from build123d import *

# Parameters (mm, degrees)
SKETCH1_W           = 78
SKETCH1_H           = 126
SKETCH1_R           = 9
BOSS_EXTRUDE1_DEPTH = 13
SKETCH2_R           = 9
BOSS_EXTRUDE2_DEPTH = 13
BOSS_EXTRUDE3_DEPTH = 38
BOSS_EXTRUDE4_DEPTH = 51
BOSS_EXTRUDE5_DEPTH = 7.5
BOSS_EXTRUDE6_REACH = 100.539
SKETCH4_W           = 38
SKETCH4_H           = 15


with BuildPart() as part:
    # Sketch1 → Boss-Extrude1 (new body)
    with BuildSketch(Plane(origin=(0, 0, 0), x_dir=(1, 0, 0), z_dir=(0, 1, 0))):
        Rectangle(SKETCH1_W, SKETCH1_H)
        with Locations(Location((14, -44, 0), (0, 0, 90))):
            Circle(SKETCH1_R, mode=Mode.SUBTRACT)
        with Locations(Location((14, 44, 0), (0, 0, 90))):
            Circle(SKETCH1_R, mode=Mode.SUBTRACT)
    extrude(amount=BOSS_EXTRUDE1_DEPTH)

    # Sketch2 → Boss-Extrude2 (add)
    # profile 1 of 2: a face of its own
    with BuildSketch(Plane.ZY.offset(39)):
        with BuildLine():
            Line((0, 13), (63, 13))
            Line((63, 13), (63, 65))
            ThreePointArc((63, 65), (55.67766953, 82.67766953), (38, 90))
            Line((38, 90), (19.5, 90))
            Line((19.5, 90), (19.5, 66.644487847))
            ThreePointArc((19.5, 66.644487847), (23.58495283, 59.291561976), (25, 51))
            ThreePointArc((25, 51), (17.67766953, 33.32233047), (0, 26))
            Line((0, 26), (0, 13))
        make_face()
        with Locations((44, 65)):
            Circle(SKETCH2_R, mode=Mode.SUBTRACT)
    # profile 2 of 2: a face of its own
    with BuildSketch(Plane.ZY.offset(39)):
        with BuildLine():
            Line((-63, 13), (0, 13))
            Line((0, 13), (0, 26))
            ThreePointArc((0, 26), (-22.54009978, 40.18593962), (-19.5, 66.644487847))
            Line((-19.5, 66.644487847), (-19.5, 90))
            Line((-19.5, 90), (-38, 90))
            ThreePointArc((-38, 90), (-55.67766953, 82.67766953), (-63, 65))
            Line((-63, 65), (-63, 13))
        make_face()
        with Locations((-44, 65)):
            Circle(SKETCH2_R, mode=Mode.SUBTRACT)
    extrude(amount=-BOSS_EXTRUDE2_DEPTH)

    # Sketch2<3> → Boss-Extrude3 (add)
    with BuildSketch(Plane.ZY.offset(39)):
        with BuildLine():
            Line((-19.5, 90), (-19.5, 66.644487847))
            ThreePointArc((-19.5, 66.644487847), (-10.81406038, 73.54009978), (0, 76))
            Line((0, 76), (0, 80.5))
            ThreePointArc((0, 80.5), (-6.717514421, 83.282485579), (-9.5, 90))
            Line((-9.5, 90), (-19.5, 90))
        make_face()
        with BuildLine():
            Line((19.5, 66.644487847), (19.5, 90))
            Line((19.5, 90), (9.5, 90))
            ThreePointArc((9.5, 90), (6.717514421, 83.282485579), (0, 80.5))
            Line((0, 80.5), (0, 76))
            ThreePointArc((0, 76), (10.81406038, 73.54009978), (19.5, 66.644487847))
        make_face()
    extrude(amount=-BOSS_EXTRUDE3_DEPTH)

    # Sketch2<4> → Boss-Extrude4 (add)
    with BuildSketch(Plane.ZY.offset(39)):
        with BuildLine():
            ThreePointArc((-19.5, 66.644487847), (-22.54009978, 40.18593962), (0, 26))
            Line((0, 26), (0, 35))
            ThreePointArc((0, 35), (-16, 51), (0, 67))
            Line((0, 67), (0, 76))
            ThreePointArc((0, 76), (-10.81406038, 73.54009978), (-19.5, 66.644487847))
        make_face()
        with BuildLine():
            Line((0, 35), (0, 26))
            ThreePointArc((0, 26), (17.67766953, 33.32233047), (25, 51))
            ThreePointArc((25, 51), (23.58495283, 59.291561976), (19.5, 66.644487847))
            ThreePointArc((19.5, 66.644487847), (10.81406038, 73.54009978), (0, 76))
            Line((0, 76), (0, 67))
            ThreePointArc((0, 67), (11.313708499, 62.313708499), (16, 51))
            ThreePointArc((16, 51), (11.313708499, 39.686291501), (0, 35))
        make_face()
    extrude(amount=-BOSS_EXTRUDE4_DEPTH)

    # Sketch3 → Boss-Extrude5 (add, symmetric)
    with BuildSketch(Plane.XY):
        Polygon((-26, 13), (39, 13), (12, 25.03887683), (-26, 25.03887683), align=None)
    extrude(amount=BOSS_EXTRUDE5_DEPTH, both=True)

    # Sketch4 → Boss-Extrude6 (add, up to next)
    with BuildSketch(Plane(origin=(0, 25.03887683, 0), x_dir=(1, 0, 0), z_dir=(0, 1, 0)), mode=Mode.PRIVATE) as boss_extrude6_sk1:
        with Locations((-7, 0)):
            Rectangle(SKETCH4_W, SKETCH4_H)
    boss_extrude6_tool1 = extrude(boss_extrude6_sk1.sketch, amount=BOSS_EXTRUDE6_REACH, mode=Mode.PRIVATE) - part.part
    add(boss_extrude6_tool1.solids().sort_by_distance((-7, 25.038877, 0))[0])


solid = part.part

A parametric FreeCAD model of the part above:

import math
import FreeCAD as App
import Part
import Sketcher
Q = App.Units.Quantity

doc = App.newDocument("Part")
body = doc.addObject("PartDesign::Body", "Body")

# Sketch on XZ plane
sketch1 = body.newObject("Sketcher::SketchObject", "Sketch")
sketch1.AttachmentSupport = (doc.getObject("XZ_Plane"), [""])
sketch1.MapMode = "FlatFace"
sketch1.addGeometry(Part.LineSegment(App.Vector(-39, -63, 0), App.Vector(-39, 63, 0)), False)
sketch1.addGeometry(Part.LineSegment(App.Vector(-39, 63, 0), App.Vector(39, 63, 0)), False)
sketch1.addGeometry(Part.LineSegment(App.Vector(39, 63, 0), App.Vector(39, -63, 0)), False)
sketch1.addGeometry(Part.LineSegment(App.Vector(39, -63, 0), App.Vector(-39, -63, 0)), False)
sketch1.addGeometry(Part.Circle(App.Vector(14, 44, 0), App.Vector(0, 0, 1), 9), False)
sketch1.addGeometry(Part.Circle(App.Vector(14, -44, 0), App.Vector(0, 0, 1), 9), False)
sketch1.addConstraint(Sketcher.Constraint("Coincident", 0, 2, 1, 1))
sketch1.addConstraint(Sketcher.Constraint("Coincident", 1, 2, 2, 1))
sketch1.addConstraint(Sketcher.Constraint("Coincident", 2, 2, 3, 1))
sketch1.addConstraint(Sketcher.Constraint("Coincident", 3, 2, 0, 1))
sketch1.addConstraint(Sketcher.Constraint("Vertical", 0))
sketch1.addConstraint(Sketcher.Constraint("Horizontal", 1))
sketch1.addConstraint(Sketcher.Constraint("Vertical", 2))
sketch1.addConstraint(Sketcher.Constraint("Horizontal", 3))
sketch1.addConstraint(Sketcher.Constraint("Equal", 4, 5))
sketch1.addConstraint(Sketcher.Constraint("Symmetric", 0, 2, 2, 2, -1, 1))
sketch1.addConstraint(Sketcher.Constraint("Symmetric", 4, 3, 5, 3, -1))
sketch1.addConstraint(Sketcher.Constraint("Diameter", 4, Q("18 mm")))
sketch1.addConstraint(Sketcher.Constraint("DistanceX", 1, 1, 1, 2, Q("78 mm")))
sketch1.addConstraint(Sketcher.Constraint("DistanceY", 0, 1, 0, 2, Q("126 mm")))
sketch1.addConstraint(Sketcher.Constraint("DistanceX", -1, 1, 4, 3, Q("14 mm")))
sketch1.addConstraint(Sketcher.Constraint("DistanceY", -1, 1, 4, 3, Q("44 mm")))
pad1 = body.newObject("PartDesign::Pad", "Pad")
pad1.Profile = sketch1
pad1.Length = 13
pad1.Reversed = True

# Sketch on YZ plane
sketch2 = body.newObject("Sketcher::SketchObject", "Sketch001")
sketch2.AttachmentSupport = (doc.getObject("YZ_Plane"), [""])
sketch2.MapMode = "FlatFace"
sketch2.AttachmentOffset = App.Placement(App.Vector(0, 0, -39), App.Rotation())
sketch2.addGeometry(Part.LineSegment(App.Vector(13, 63, 0), App.Vector(65, 63, 0)), False)
sketch2.addGeometry(Part.ArcOfCircle(Part.Circle(App.Vector(65, 38, 0), App.Vector(0, 0, 1), 25), math.radians(0), math.radians(90)), False)
sketch2.addGeometry(Part.LineSegment(App.Vector(90, 38, 0), App.Vector(90, 20, 0)), False)
sketch2.addGeometry(Part.LineSegment(App.Vector(90, 20, 0), App.Vector(67, 20, 0)), False)
sketch2.addGeometry(Part.ArcOfCircle(Part.Circle(App.Vector(51, 0, 0), App.Vector(0, 0, 1), 25), math.radians(51), math.radians(90)), False)
sketch2.addGeometry(Part.ArcOfCircle(Part.Circle(App.Vector(51, 0, 0), App.Vector(0, 0, 1), 25), math.radians(90), math.radians(180)), False)
sketch2.addGeometry(Part.ArcOfCircle(Part.Circle(App.Vector(51, 0, 0), App.Vector(0, 0, 1), 25), math.radians(180), math.radians(309)), False)
sketch2.addGeometry(Part.LineSegment(App.Vector(67, -20, 0), App.Vector(90, -20, 0)), False)
sketch2.addGeometry(Part.LineSegment(App.Vector(90, -20, 0), App.Vector(90, -38, 0)), False)
sketch2.addGeometry(Part.ArcOfCircle(Part.Circle(App.Vector(65, -38, 0), App.Vector(0, 0, 1), 25), math.radians(-90), math.radians(0)), False)
sketch2.addGeometry(Part.LineSegment(App.Vector(65, -63, 0), App.Vector(13, -63, 0)), False)
sketch2.addGeometry(Part.LineSegment(App.Vector(13, -63, 0), App.Vector(13, 63, 0)), False)
sketch2.addGeometry(Part.Circle(App.Vector(65, 44, 0), App.Vector(0, 0, 1), 9), False)
sketch2.addGeometry(Part.Circle(App.Vector(65, -44, 0), App.Vector(0, 0, 1), 9), False)
sketch2.addConstraint(Sketcher.Constraint("Tangent", 0, 2, 1, 2))
sketch2.addConstraint(Sketcher.Constraint("Tangent", 1, 1, 2, 1))
sketch2.addConstraint(Sketcher.Constraint("Coincident", 2, 2, 3, 1))
sketch2.addConstraint(Sketcher.Constraint("Coincident", 3, 2, 4, 1))
sketch2.addConstraint(Sketcher.Constraint("Tangent", 4, 2, 5, 1))
sketch2.addConstraint(Sketcher.Constraint("Tangent", 5, 2, 6, 1))
sketch2.addConstraint(Sketcher.Constraint("Coincident", 6, 2, 7, 1))
sketch2.addConstraint(Sketcher.Constraint("Coincident", 7, 2, 8, 1))
sketch2.addConstraint(Sketcher.Constraint("Tangent", 8, 2, 9, 2))
sketch2.addConstraint(Sketcher.Constraint("Tangent", 9, 1, 10, 1))
sketch2.addConstraint(Sketcher.Constraint("Coincident", 10, 2, 11, 1))
sketch2.addConstraint(Sketcher.Constraint("Coincident", 11, 2, 0, 1))
sketch2.addConstraint(Sketcher.Constraint("Horizontal", 0))
sketch2.addConstraint(Sketcher.Constraint("Vertical", 2))
sketch2.addConstraint(Sketcher.Constraint("Horizontal", 3))
sketch2.addConstraint(Sketcher.Constraint("Horizontal", 7))
sketch2.addConstraint(Sketcher.Constraint("Vertical", 8))
sketch2.addConstraint(Sketcher.Constraint("Horizontal", 10))
sketch2.addConstraint(Sketcher.Constraint("Vertical", 11))
sketch2.addConstraint(Sketcher.Constraint("Coincident", 6, 3, 4, 3))
sketch2.addConstraint(Sketcher.Constraint("Equal", 1, 4))
sketch2.addConstraint(Sketcher.Constraint("Equal", 6, 9))
sketch2.addConstraint(Sketcher.Constraint("Equal", 12, 13))
sketch2.addConstraint(Sketcher.Constraint("Symmetric", 1, 3, 9, 3, -1))
sketch2.addConstraint(Sketcher.Constraint("Symmetric", 12, 3, 13, 3, -1))
sketch2.addConstraint(Sketcher.Constraint("Symmetric", 3, 2, 6, 2, -1))
sketch2.addConstraint(Sketcher.Constraint("PointOnObject", 5, 2, -1))
sketch2.addConstraint(Sketcher.Constraint("Vertical", 9, 3, 12, 3))
sketch2.addConstraint(Sketcher.Constraint("Vertical", 6, 3, 4, 2))
sketch2.addConstraint(Sketcher.Constraint("Diameter", 12, Q("18 mm")))
sketch2.addConstraint(Sketcher.Constraint("Radius", 1, Q("25 mm")))
sketch2.addConstraint(Sketcher.Constraint("DistanceX", 0, 1, 0, 2, Q("52 mm")))
sketch2.addConstraint(Sketcher.Constraint("DistanceY", 11, 1, 11, 2, Q("126 mm")))
sketch2.addConstraint(Sketcher.Constraint("DistanceY", 2, 2, 2, 1, Q("18.5 mm")))
sketch2.addConstraint(Sketcher.Constraint("DistanceX", -1, 1, 1, 3, Q("65 mm")))
sketch2.addConstraint(Sketcher.Constraint("DistanceX", -1, 1, 4, 3, Q("51 mm")))
sketch2.addConstraint(Sketcher.Constraint("DistanceY", -1, 1, 12, 3, Q("44 mm")))
pad2 = body.newObject("PartDesign::Pad", "Pad001")
pad2.Profile = sketch2
pad2.Length = 13

# Sketch on YZ plane
sketch3 = body.newObject("Sketcher::SketchObject", "Sketch002")
sketch3.AttachmentSupport = (doc.getObject("YZ_Plane"), [""])
sketch3.MapMode = "FlatFace"
sketch3.AttachmentOffset = App.Placement(App.Vector(0, 0, -39), App.Rotation())
sketch3.addGeometry(Part.LineSegment(App.Vector(90, -20, 0), App.Vector(67, -20, 0)), False)
sketch3.addGeometry(Part.ArcOfCircle(Part.Circle(App.Vector(51, 0, 0), App.Vector(0, 0, 1), 25), math.radians(-51), math.radians(0)), False)
sketch3.addGeometry(Part.ArcOfCircle(Part.Circle(App.Vector(51, 0, 0), App.Vector(0, 0, 1), 25), math.radians(0), math.radians(51)), False)
sketch3.addGeometry(Part.LineSegment(App.Vector(67, 20, 0), App.Vector(90, 20, 0)), False)
sketch3.addGeometry(Part.LineSegment(App.Vector(90, 20, 0), App.Vector(90, 10, 0)), False)
sketch3.addGeometry(Part.ArcOfCircle(Part.Circle(App.Vector(90, 0, 0), App.Vector(0, 0, 1), 10), math.radians(90), math.radians(180)), False)
sketch3.addGeometry(Part.ArcOfCircle(Part.Circle(App.Vector(90, 0, 0), App.Vector(0, 0, 1), 10), math.radians(-180), math.radians(-90)), False)
sketch3.addGeometry(Part.LineSegment(App.Vector(90, -10, 0), App.Vector(90, -20, 0)), False)
sketch3.addConstraint(Sketcher.Constraint("Coincident", 0, 2, 1, 1))
sketch3.addConstraint(Sketcher.Constraint("Tangent", 1, 2, 2, 1))
sketch3.addConstraint(Sketcher.Constraint("Coincident", 2, 2, 3, 1))
sketch3.addConstraint(Sketcher.Constraint("Coincident", 3, 2, 4, 1))
sketch3.addConstraint(Sketcher.Constraint("Coincident", 4, 2, 5, 1))
sketch3.addConstraint(Sketcher.Constraint("Tangent", 5, 2, 6, 1))
sketch3.addConstraint(Sketcher.Constraint("Coincident", 6, 2, 7, 1))
sketch3.addConstraint(Sketcher.Constraint("Coincident", 7, 2, 0, 1))
sketch3.addConstraint(Sketcher.Constraint("Horizontal", 0))
sketch3.addConstraint(Sketcher.Constraint("Horizontal", 3))
sketch3.addConstraint(Sketcher.Constraint("Vertical", 4))
sketch3.addConstraint(Sketcher.Constraint("Vertical", 7))
sketch3.addConstraint(Sketcher.Constraint("Equal", 1, 2))
sketch3.addConstraint(Sketcher.Constraint("Equal", 5, 6))
sketch3.addConstraint(Sketcher.Constraint("Symmetric", 0, 2, 2, 2, -1))
sketch3.addConstraint(Sketcher.Constraint("Symmetric", 4, 2, 6, 2, -1))
sketch3.addConstraint(Sketcher.Constraint("PointOnObject", 1, 2, -1))
sketch3.addConstraint(Sketcher.Constraint("PointOnObject", 5, 2, -1))
sketch3.addConstraint(Sketcher.Constraint("Vertical", 6, 3, 3, 2))
sketch3.addConstraint(Sketcher.Constraint("Radius", 1, Q("25 mm")))
sketch3.addConstraint(Sketcher.Constraint("Radius", 5, Q("9.5 mm")))
sketch3.addConstraint(Sketcher.Constraint("DistanceY", 4, 2, 4, 1, Q("10 mm")))
sketch3.addConstraint(Sketcher.Constraint("DistanceX", -1, 1, 1, 3, Q("51 mm")))
sketch3.addConstraint(Sketcher.Constraint("DistanceX", -1, 1, 5, 3, Q("90 mm")))
pad3 = body.newObject("PartDesign::Pad", "Pad002")
pad3.Profile = sketch3
pad3.Length = 38

# Sketch on YZ plane
sketch4 = body.newObject("Sketcher::SketchObject", "Sketch003")
sketch4.AttachmentSupport = (doc.getObject("YZ_Plane"), [""])
sketch4.MapMode = "FlatFace"
sketch4.AttachmentOffset = App.Placement(App.Vector(0, 0, -39), App.Rotation())
sketch4.addGeometry(Part.ArcOfCircle(Part.Circle(App.Vector(51, 0, 0), App.Vector(0, 0, 1), 25), math.radians(180), math.radians(309)), False)
sketch4.addGeometry(Part.ArcOfCircle(Part.Circle(App.Vector(51, 0, 0), App.Vector(0, 0, 1), 25), math.radians(90), math.radians(180)), False)
sketch4.addGeometry(Part.ArcOfCircle(Part.Circle(App.Vector(51, 0, 0), App.Vector(0, 0, 1), 25), math.radians(51), math.radians(90)), False)
sketch4.addGeometry(Part.ArcOfCircle(Part.Circle(App.Vector(51, 0, 0), App.Vector(0, 0, 1), 25), math.radians(0), math.radians(51)), False)
sketch4.addGeometry(Part.ArcOfCircle(Part.Circle(App.Vector(51, 0, 0), App.Vector(0, 0, 1), 25), math.radians(-51), math.radians(0)), False)
sketch4.addGeometry(Part.ArcOfCircle(Part.Circle(App.Vector(51, 0, 0), App.Vector(0, 0, 1), 16), math.radians(180), math.radians(360)), False)
sketch4.addGeometry(Part.ArcOfCircle(Part.Circle(App.Vector(51, 0, 0), App.Vector(0, 0, 1), 16), math.radians(0), math.radians(90)), False)
sketch4.addGeometry(Part.ArcOfCircle(Part.Circle(App.Vector(51, 0, 0), App.Vector(0, 0, 1), 16), math.radians(90), math.radians(180)), False)
sketch4.addConstraint(Sketcher.Constraint("Tangent", 0, 1, 1, 2))
sketch4.addConstraint(Sketcher.Constraint("Tangent", 1, 1, 2, 2))
sketch4.addConstraint(Sketcher.Constraint("Tangent", 2, 1, 3, 2))
sketch4.addConstraint(Sketcher.Constraint("Tangent", 3, 1, 4, 2))
sketch4.addConstraint(Sketcher.Constraint("Tangent", 4, 1, 0, 2))
sketch4.addConstraint(Sketcher.Constraint("Tangent", 5, 2, 6, 1))
sketch4.addConstraint(Sketcher.Constraint("Tangent", 6, 2, 7, 1))
sketch4.addConstraint(Sketcher.Constraint("Tangent", 7, 2, 5, 1))
sketch4.addConstraint(Sketcher.Constraint("Coincident", 2, 3, 0, 3))
sketch4.addConstraint(Sketcher.Constraint("Coincident", 5, 3, 0, 3))
sketch4.addConstraint(Sketcher.Constraint("Symmetric", 2, 1, 4, 1, -1))
sketch4.addConstraint(Sketcher.Constraint("PointOnObject", 0, 1, -1))
sketch4.addConstraint(Sketcher.Constraint("PointOnObject", 3, 1, -1))
sketch4.addConstraint(Sketcher.Constraint("PointOnObject", 5, 2, -1))
sketch4.addConstraint(Sketcher.Constraint("PointOnObject", 7, 2, -1))
sketch4.addConstraint(Sketcher.Constraint("Vertical", 7, 3, 1, 1))
sketch4.addConstraint(Sketcher.Constraint("Vertical", 1, 1, 6, 2))
sketch4.addConstraint(Sketcher.Constraint("Radius", 0, Q("25 mm")))
sketch4.addConstraint(Sketcher.Constraint("Radius", 5, Q("16 mm")))
sketch4.addConstraint(Sketcher.Constraint("DistanceX", -1, 1, 0, 3, Q("51 mm")))
sketch4.addConstraint(Sketcher.Constraint("DistanceY", -1, 1, 2, 1, Q("19.5 mm")))
pad4 = body.newObject("PartDesign::Pad", "Pad003")
pad4.Profile = sketch4
pad4.Length = 51

# Sketch on XY plane
sketch5 = body.newObject("Sketcher::SketchObject", "Sketch004")
sketch5.AttachmentSupport = (doc.getObject("XY_Plane"), [""])
sketch5.MapMode = "FlatFace"
sketch5.addGeometry(Part.LineSegment(App.Vector(-26, 13, 0), App.Vector(39, 13, 0)), False)
sketch5.addGeometry(Part.LineSegment(App.Vector(39, 13, 0), App.Vector(12, 25, 0)), False)
sketch5.addGeometry(Part.LineSegment(App.Vector(12, 25, 0), App.Vector(-26, 25, 0)), False)
sketch5.addGeometry(Part.LineSegment(App.Vector(-26, 25, 0), App.Vector(-26, 13, 0)), False)
sketch5.addConstraint(Sketcher.Constraint("Coincident", 0, 2, 1, 1))
sketch5.addConstraint(Sketcher.Constraint("Coincident", 1, 2, 2, 1))
sketch5.addConstraint(Sketcher.Constraint("Coincident", 2, 2, 3, 1))
sketch5.addConstraint(Sketcher.Constraint("Coincident", 3, 2, 0, 1))
sketch5.addConstraint(Sketcher.Constraint("Horizontal", 0))
sketch5.addConstraint(Sketcher.Constraint("Horizontal", 2))
sketch5.addConstraint(Sketcher.Constraint("Vertical", 3))
sketch5.addConstraint(Sketcher.Constraint("DistanceX", 0, 1, 0, 2, Q("65 mm")))
sketch5.addConstraint(Sketcher.Constraint("DistanceX", 2, 2, 2, 1, Q("38 mm")))
sketch5.addConstraint(Sketcher.Constraint("DistanceX", -1, 1, 0, 2, Q("39 mm")))
sketch5.addConstraint(Sketcher.Constraint("DistanceY", -1, 1, 0, 2, Q("13 mm")))
sketch5.addConstraint(Sketcher.Constraint("DistanceY", 3, 2, 3, 1, Q("12.038877 mm")))
pad5 = body.newObject("PartDesign::Pad", "Pad004")
pad5.Profile = sketch5
pad5.Length = 15
pad5.Midplane = True

# Sketch on XZ plane
sketch6 = body.newObject("Sketcher::SketchObject", "Sketch005")
sketch6.AttachmentSupport = (doc.getObject("XZ_Plane"), [""])
sketch6.MapMode = "FlatFace"
sketch6.AttachmentOffset = App.Placement(App.Vector(0, 0, -25.038877), App.Rotation())
sketch6.addGeometry(Part.LineSegment(App.Vector(-26, -8, 0), App.Vector(-26, 8, 0)), False)
sketch6.addGeometry(Part.LineSegment(App.Vector(-26, 8, 0), App.Vector(12, 8, 0)), False)
sketch6.addGeometry(Part.LineSegment(App.Vector(12, 8, 0), App.Vector(12, -8, 0)), False)
sketch6.addGeometry(Part.LineSegment(App.Vector(12, -8, 0), App.Vector(-26, -8, 0)), False)
sketch6.addConstraint(Sketcher.Constraint("Coincident", 0, 2, 1, 1))
sketch6.addConstraint(Sketcher.Constraint("Coincident", 1, 2, 2, 1))
sketch6.addConstraint(Sketcher.Constraint("Coincident", 2, 2, 3, 1))
sketch6.addConstraint(Sketcher.Constraint("Coincident", 3, 2, 0, 1))
sketch6.addConstraint(Sketcher.Constraint("Vertical", 0))
sketch6.addConstraint(Sketcher.Constraint("Horizontal", 1))
sketch6.addConstraint(Sketcher.Constraint("Vertical", 2))
sketch6.addConstraint(Sketcher.Constraint("Horizontal", 3))
sketch6.addConstraint(Sketcher.Constraint("DistanceX", 1, 1, 1, 2, Q("38 mm")))
sketch6.addConstraint(Sketcher.Constraint("DistanceY", 0, 1, 0, 2, Q("15 mm")))
sketch6.addConstraint(Sketcher.Constraint("DistanceX", 0, 2, -1, 1, Q("26 mm")))
sketch6.addConstraint(Sketcher.Constraint("DistanceY", -1, 1, 0, 2, Q("7.5 mm")))
pad6 = body.newObject("PartDesign::Pad", "Pad005")
pad6.Profile = sketch6
pad6.Type = "UpToFirst"
pad6.Reversed = True

doc.recompute()
